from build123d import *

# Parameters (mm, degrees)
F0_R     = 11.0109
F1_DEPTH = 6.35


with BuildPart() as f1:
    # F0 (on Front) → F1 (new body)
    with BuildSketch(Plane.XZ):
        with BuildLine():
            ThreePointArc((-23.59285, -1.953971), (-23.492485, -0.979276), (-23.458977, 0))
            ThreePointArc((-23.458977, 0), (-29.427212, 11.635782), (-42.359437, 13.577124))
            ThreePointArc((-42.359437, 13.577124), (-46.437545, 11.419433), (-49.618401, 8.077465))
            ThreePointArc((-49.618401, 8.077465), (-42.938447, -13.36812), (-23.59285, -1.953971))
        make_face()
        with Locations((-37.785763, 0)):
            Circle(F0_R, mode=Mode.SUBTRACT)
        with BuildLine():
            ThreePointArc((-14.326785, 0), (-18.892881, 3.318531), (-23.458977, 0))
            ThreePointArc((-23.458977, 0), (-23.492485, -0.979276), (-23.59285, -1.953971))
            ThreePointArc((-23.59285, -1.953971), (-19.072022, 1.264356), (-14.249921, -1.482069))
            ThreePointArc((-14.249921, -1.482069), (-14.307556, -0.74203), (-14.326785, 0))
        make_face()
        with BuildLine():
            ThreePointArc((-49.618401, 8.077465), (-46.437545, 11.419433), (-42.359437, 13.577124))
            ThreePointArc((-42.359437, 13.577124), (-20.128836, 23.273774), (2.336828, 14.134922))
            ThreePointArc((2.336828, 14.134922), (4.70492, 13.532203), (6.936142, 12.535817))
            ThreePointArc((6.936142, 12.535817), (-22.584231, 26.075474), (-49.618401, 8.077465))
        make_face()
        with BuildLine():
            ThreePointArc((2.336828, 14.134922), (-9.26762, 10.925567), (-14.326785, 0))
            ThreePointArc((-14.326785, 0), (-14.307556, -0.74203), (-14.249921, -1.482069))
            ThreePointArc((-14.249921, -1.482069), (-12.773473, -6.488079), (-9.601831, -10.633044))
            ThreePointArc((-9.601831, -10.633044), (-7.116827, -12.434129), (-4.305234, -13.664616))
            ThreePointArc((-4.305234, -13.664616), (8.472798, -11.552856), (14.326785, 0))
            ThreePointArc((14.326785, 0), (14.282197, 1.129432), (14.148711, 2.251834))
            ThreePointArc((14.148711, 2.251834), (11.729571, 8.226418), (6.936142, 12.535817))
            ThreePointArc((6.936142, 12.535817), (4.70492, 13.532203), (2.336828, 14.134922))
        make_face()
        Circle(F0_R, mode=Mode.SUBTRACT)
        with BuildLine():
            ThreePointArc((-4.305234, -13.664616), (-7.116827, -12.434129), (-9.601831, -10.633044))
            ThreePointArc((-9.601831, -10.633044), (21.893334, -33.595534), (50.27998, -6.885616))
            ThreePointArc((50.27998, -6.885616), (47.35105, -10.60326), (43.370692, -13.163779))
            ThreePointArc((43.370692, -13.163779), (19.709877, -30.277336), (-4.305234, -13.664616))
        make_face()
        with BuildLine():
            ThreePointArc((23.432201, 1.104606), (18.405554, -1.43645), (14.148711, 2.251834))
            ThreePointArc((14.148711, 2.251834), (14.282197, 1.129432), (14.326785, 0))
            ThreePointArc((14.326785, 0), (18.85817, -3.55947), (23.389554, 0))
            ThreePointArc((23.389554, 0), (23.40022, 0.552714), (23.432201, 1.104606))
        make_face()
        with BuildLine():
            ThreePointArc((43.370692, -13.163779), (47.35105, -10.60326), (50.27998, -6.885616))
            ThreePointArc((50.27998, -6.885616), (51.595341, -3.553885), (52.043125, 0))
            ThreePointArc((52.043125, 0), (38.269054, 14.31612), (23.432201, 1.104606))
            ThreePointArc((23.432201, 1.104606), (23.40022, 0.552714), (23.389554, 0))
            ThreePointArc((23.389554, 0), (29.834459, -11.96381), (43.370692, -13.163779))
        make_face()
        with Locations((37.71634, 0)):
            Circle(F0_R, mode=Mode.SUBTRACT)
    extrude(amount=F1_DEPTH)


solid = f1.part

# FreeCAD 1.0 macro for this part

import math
import FreeCAD as App
import Part
import Sketcher
from FreeCAD import Vector
Q = App.Units.Quantity

doc = App.newDocument("Part")
body = doc.addObject("PartDesign::Body", "Body")

# Sketch on XZ plane
sketch1 = body.newObject("Sketcher::SketchObject", "Sketch")
sketch1.AttachmentSupport = (doc.getObject("XZ_Plane"), [""])
sketch1.MapMode = "FlatFace"
sketch1.addGeometry([
    Part.ArcOfCircle(Part.Circle(Vector(-37.785763, 0, 0), Vector(0, 0, 1), 14.326785), math.radians(145.680881), math.radians(352.161236)),  # 0
    Part.ArcOfCircle(Part.Circle(Vector(-18.811912, -3.885422, 0), Vector(0, 0, 1), 5.156343), math.radians(27.781203), math.radians(158.001787)),  # 1
    Part.ArcOfCircle(Part.Circle(Vector(-0.000001, -0.000001, 0), Vector(0, 0, 1), 14.326785), math.radians(-174.062279), math.radians(-132.082607)),  # 2
    Part.ArcOfCircle(Part.Circle(Vector(19.986791, -3.130032, 0), Vector(0, 0, 1), 30.5251), math.radians(-165.770995), math.radians(-7.067158)),  # 3
    Part.ArcOfCircle(Part.Circle(Vector(37.716345, 0, 0), Vector(0, 0, 1), 14.32678), math.radians(-28.725349), math.radians(0.000002)),  # 4
    Part.ArcOfCircle(Part.Circle(Vector(37.71634, 0, 0), Vector(0, 0, 1), 14.326785), math.radians(-0.000001), math.radians(175.578065)),  # 5
    Part.ArcOfCircle(Part.Circle(Vector(19.025429, 3.579646, 0), Vector(0, 0, 1), 5.054252), math.radians(-164.768966), math.radians(-29.32051)),  # 6
    Part.ArcOfCircle(Part.Circle(Vector(0.000004, 0.000002, 0), Vector(0, 0, 1), 14.326781), math.radians(9.043041), math.radians(61.043992)),  # 7
    Part.ArcOfCircle(Part.Circle(Vector(-19.963958, -7.162882, 0), Vector(0, 0, 1), 33.341478), math.radians(36.214979), math.radians(152.799948)),  # 8
    Part.ArcOfCircle(Part.Circle(Vector(19.444305, -4.996932, 0), Vector(0, 0, 1), 25.281799), math.radians(-159.949829), math.radians(-18.846428)),  # 9
    Part.ArcOfCircle(Part.Circle(Vector(0.000001, -0.000001, 0), Vector(0, 0, 1), 14.326784), math.radians(-107.487789), math.radians(0.000005)),  # 10
    Part.ArcOfCircle(Part.Circle(Vector(18.858169, 1.104605, 0), Vector(0, 0, 1), 4.664075), math.radians(-166.300324), math.radians(-13.699676)),  # 11
    Part.ArcOfCircle(Part.Circle(Vector(37.716339, -0.000001, 0), Vector(0, 0, 1), 14.326785), math.radians(179.999998), math.radians(293.245397)),  # 12
    Part.Circle(Vector(-37.785763, 0, 0), Vector(0, 0, 1), 11.0109),  # 13
    Part.ArcOfCircle(Part.Circle(Vector(-18.892881, -1.482069, 0), Vector(0, 0, 1), 4.8006), math.radians(17.982458), math.radians(162.017542)),  # 14
    Part.ArcOfCircle(Part.Circle(Vector(-37.785763, 0, 0), Vector(0, 0, 1), 14.326786), math.radians(-0.000001), math.radians(108.616933)),  # 15
    Part.ArcOfCircle(Part.Circle(Vector(-19.739159, -7.950935, 0), Vector(0, 0, 1), 31.22714), math.radians(45.012804), math.radians(136.417195)),  # 16
    Part.ArcOfCircle(Part.Circle(Vector(-0.000001, 0.000002, 0), Vector(0, 0, 1), 14.326784), math.radians(80.612594), math.radians(180.000006)),  # 17
    Part.Circle(Vector(0, 0, 0), Vector(0, 0, 1), 11.0109),  # 18
    Part.Circle(Vector(37.71634, 0, 0), Vector(0, 0, 1), 11.0109),  # 19
], False)
sketch1.addConstraint([
    Sketcher.Constraint("Coincident", 0, 2, 1, 2),
    Sketcher.Constraint("Coincident", 1, 1, 2, 1),
    Sketcher.Constraint("Coincident", 2, 2, 3, 1),
    Sketcher.Constraint("Coincident", 3, 2, 4, 1),
    Sketcher.Constraint("Tangent", 4, 2, 5, 1),
    Sketcher.Constraint("Coincident", 5, 2, 6, 2),
    Sketcher.Constraint("Coincident", 6, 1, 7, 1),
    Sketcher.Constraint("Coincident", 7, 2, 8, 1),
    Sketcher.Constraint("Coincident", 8, 2, 0, 1),
    Sketcher.Constraint("Coincident", 9, 1, 10, 1),
    Sketcher.Constraint("Coincident", 10, 2, 11, 1),
    Sketcher.Constraint("Coincident", 11, 2, 12, 1),
    Sketcher.Constraint("Coincident", 12, 2, 9, 2),
    Sketcher.Constraint("Coincident", 14, 2, 15, 1),
    Sketcher.Constraint("Coincident", 15, 2, 16, 2),
    Sketcher.Constraint("Coincident", 16, 1, 17, 1),
    Sketcher.Constraint("Coincident", 17, 2, 14, 1),
    Sketcher.Constraint("Coincident", 2, 3, -1, 1),
    Sketcher.Constraint("Coincident", 7, 3, -1, 1),
    Sketcher.Constraint("Coincident", 10, 3, -1, 1),
    Sketcher.Constraint("Coincident", 17, 3, -1, 1),
    Sketcher.Constraint("Coincident", 18, 3, -1, 1),
    Sketcher.Constraint("Coincident", 12, 3, 4, 3),
    Sketcher.Constraint("Coincident", 13, 3, 0, 3),
    Sketcher.Constraint("Coincident", 15, 3, 0, 3),
    Sketcher.Constraint("Coincident", 19, 3, 4, 3),
    Sketcher.Constraint("Equal", 0, 2),
    Sketcher.Constraint("Equal", 2, 5),
    Sketcher.Constraint("Equal", 4, 7),
    Sketcher.Constraint("Equal", 5, 10),
    Sketcher.Constraint("Equal", 10, 12),
    Sketcher.Constraint("Equal", 12, 15),
    Sketcher.Constraint("Equal", 15, 17),
    Sketcher.Constraint("Equal", 13, 18),
    Sketcher.Constraint("Equal", 18, 19),
    Sketcher.Constraint("PointOnObject", 0, 3, -1),
    Sketcher.Constraint("PointOnObject", 4, 3, -1),
    Sketcher.Constraint("PointOnObject", 4, 2, -1),
    Sketcher.Constraint("PointOnObject", 10, 2, -1),
    Sketcher.Constraint("PointOnObject", 11, 2, -1),
    Sketcher.Constraint("PointOnObject", 14, 2, -1),
    Sketcher.Constraint("PointOnObject", 17, 2, -1),
    Sketcher.Constraint("Horizontal", 14, 3, 1, 1),
    Sketcher.Constraint("Horizontal", 11, 3, 5, 2),
    Sketcher.Constraint("Diameter", 13, Q("0.867 in")),
    Sketcher.Constraint("Radius", 14, Q("0.189 in")),
    Sketcher.Constraint("Radius", 3, 30.5251),
    Sketcher.Constraint("Radius", 9, 25.281799),
    Sketcher.Constraint("Radius", 4, 14.32678),
    Sketcher.Constraint("Radius", 6, 5.054252),
    Sketcher.Constraint("Radius", 16, 31.22714),
    Sketcher.Constraint("Radius", 0, 14.326785),
    Sketcher.Constraint("Radius", 1, 5.156343),
    Sketcher.Constraint("Radius", 8, 33.341478),
    Sketcher.Constraint("Radius", 11, 4.664075),
    Sketcher.Constraint("DistanceY", 9, 3, 3, 3, Q("0.0735 in")),
    Sketcher.Constraint("DistanceX", -1, 1, 5, 2, 23.432201),
    Sketcher.Constraint("DistanceX", 8, 2, -1, 1, 49.618401),
    Sketcher.Constraint("DistanceX", 7, 3, 9, 3, 19.444302),
    Sketcher.Constraint("DistanceX", 8, 3, 16, 3, 0.224799),
    Sketcher.Constraint("DistanceY", 0, 2, 14, 3, 0.471902),
    Sketcher.Constraint("DistanceY", 1, 3, -1, 1, 3.885422),
    Sketcher.Constraint("DistanceX", -1, 1, 3, 3, 19.986791),
    Sketcher.Constraint("DistanceY", 3, 3, -1, 1, 3.130032),
    Sketcher.Constraint("DistanceX", -1, 1, 6, 3, 19.025429),
    Sketcher.Constraint("DistanceX", 8, 3, -1, 1, 19.963958),
    Sketcher.Constraint("DistanceY", -1, 1, 16, 1, 14.134922),
])
pad1 = body.newObject("PartDesign::Pad", "Pad")
pad1.Profile = sketch1
pad1.Length = Q("0.25 in")

doc.recompute()
